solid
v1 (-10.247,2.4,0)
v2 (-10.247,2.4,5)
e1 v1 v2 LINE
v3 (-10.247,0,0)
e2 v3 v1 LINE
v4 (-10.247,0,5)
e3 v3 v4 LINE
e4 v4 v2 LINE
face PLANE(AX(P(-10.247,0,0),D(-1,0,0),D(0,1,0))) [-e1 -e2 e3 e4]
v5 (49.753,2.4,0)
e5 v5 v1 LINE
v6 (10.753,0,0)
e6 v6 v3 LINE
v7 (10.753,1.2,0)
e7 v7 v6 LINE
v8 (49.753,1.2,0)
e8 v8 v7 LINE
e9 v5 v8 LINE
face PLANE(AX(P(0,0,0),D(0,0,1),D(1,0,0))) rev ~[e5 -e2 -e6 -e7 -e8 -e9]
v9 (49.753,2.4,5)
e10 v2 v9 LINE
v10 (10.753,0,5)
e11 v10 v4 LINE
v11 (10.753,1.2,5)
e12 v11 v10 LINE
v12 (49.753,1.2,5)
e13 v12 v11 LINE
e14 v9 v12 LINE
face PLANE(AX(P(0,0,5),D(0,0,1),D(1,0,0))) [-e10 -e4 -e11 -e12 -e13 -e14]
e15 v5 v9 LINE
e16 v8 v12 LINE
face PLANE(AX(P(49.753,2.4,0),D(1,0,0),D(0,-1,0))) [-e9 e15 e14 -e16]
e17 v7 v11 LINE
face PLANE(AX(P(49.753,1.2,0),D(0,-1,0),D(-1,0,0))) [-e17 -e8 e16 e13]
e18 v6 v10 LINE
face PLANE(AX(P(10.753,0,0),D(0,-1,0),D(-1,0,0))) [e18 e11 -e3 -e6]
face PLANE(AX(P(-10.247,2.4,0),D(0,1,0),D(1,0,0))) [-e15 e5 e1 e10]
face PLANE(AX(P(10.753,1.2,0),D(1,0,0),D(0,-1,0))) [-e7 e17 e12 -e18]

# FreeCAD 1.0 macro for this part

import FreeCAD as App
import Part
import Sketcher

V = App.Vector
Q = App.Units.Quantity

doc = App.newDocument("Part")
body = doc.addObject("PartDesign::Body", "Body")

# Sketch on XY plane
sketch1 = doc.addObject("Sketcher::SketchObject", "Sketch")
body.addObject(sketch1)
sketch1.AttachmentSupport = (doc.XY_Plane, [""])
sketch1.MapMode = "FlatFace"
sketch1.addGeometry(Part.LineSegment(V(-10.2, 2.4, 0), V(-10.2, 0, 0)), False)
sketch1.addGeometry(Part.LineSegment(V(-10.2, 0, 0), V(10.8, 0, 0)), False)
sketch1.addGeometry(Part.LineSegment(V(10.8, 0, 0), V(10.8, 1.2, 0)), False)
sketch1.addGeometry(Part.LineSegment(V(10.8, 1.2, 0), V(49.8, 1.2, 0)), False)
sketch1.addGeometry(Part.LineSegment(V(49.8, 1.2, 0), V(49.8, 2.4, 0)), False)
sketch1.addGeometry(Part.LineSegment(V(49.8, 2.4, 0), V(-10.2, 2.4, 0)), False)
sketch1.addConstraint(Sketcher.Constraint("Coincident", 0, 2, 1, 1))
sketch1.addConstraint(Sketcher.Constraint("Coincident", 1, 2, 2, 1))
sketch1.addConstraint(Sketcher.Constraint("Coincident", 2, 2, 3, 1))
sketch1.addConstraint(Sketcher.Constraint("Coincident", 3, 2, 4, 1))
sketch1.addConstraint(Sketcher.Constraint("Coincident", 4, 2, 5, 1))
sketch1.addConstraint(Sketcher.Constraint("Coincident", 5, 2, 0, 1))
sketch1.addConstraint(Sketcher.Constraint("Vertical", 0))
sketch1.addConstraint(Sketcher.Constraint("Horizontal", 1))
sketch1.addConstraint(Sketcher.Constraint("Vertical", 2))
sketch1.addConstraint(Sketcher.Constraint("Horizontal", 3))
sketch1.addConstraint(Sketcher.Constraint("Vertical", 4))
sketch1.addConstraint(Sketcher.Constraint("Horizontal", 5))
sketch1.addConstraint(Sketcher.Constraint("PointOnObject", 0, 2, -1))
sketch1.addConstraint(Sketcher.Constraint("Equal", 2, 4))
sketch1.addConstraint(Sketcher.Constraint("DistanceX", 1, 1, 1, 2, Q("21 mm")))
sketch1.addConstraint(Sketcher.Constraint("DistanceX", 5, 2, 5, 1, Q("60 mm")))
sketch1.addConstraint(Sketcher.Constraint("DistanceY", 0, 2, 0, 1, Q("2.4 mm")))
sketch1.addConstraint(Sketcher.Constraint("DistanceX", 0, 2, -1, 1, Q("10.247 mm")))
pad1 = doc.addObject("PartDesign::Pad", "Pad")
body.addObject(pad1)
pad1.Profile = sketch1
pad1.Length = 5

doc.recompute()
